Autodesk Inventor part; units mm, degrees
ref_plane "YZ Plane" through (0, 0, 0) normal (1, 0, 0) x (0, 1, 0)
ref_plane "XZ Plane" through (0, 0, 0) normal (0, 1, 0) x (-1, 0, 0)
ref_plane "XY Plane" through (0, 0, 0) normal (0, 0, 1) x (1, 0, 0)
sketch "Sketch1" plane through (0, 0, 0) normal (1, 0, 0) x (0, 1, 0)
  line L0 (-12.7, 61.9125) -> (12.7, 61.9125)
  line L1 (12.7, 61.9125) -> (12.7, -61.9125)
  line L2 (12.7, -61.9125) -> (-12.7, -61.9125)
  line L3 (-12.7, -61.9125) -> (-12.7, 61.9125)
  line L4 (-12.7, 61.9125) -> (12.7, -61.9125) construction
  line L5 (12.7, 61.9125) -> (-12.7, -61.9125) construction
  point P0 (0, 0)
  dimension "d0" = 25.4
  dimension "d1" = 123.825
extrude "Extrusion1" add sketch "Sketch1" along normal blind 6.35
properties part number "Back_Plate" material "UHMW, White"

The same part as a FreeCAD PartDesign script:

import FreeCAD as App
import Part
import Sketcher
Q = App.Units.Quantity

doc = App.newDocument("Part")
body = doc.addObject("PartDesign::Body", "Body")

# Sketch on YZ plane
sketch1 = body.newObject("Sketcher::SketchObject", "Sketch")
sketch1.AttachmentSupport = (doc.getObject("YZ_Plane"), [""])
sketch1.MapMode = "FlatFace"
sketch1.addGeometry([
    Part.LineSegment(App.Vector(13, 62, 0), App.Vector(-13, 62, 0)),
    Part.LineSegment(App.Vector(-13, 62, 0), App.Vector(-13, -62, 0)),
    Part.LineSegment(App.Vector(-13, -62, 0), App.Vector(13, -62, 0)),
    Part.LineSegment(App.Vector(13, -62, 0), App.Vector(13, 62, 0)),
], False)
sketch1.addConstraint([
    Sketcher.Constraint("Coincident", 0, 2, 1, 1),
    Sketcher.Constraint("Coincident", 1, 2, 2, 1),
    Sketcher.Constraint("Coincident", 2, 2, 3, 1),
    Sketcher.Constraint("Coincident", 3, 2, 0, 1),
    Sketcher.Constraint("Horizontal", 0),
    Sketcher.Constraint("Vertical", 1),
    Sketcher.Constraint("Horizontal", 2),
    Sketcher.Constraint("Vertical", 3),
    Sketcher.Constraint("Symmetric", 0, 2, 2, 2, -1, 1),
    Sketcher.Constraint("DistanceX", 0, 2, 0, 1, Q("1 in")),
    Sketcher.Constraint("DistanceY", 1, 2, 1, 1, Q("4.875 in")),
])
pad1 = body.newObject("PartDesign::Pad", "Pad")
pad1.Profile = sketch1
pad1.Length = Q("0.25 in")

doc.recompute()
